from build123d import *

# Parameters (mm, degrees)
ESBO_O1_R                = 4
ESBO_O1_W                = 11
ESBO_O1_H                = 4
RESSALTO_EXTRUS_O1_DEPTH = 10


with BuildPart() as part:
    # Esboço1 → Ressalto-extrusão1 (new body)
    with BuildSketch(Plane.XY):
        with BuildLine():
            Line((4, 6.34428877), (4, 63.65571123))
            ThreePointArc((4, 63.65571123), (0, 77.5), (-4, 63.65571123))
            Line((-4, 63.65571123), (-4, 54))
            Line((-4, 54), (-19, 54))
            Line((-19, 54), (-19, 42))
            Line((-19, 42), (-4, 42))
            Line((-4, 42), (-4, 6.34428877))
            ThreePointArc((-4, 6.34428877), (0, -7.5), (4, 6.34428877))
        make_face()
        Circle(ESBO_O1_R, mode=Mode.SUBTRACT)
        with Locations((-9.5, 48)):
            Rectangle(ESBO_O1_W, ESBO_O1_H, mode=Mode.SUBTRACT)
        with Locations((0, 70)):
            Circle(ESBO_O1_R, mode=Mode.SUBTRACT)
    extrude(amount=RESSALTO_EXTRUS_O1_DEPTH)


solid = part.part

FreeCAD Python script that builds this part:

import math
import FreeCAD as App
import Part
import Sketcher
from FreeCAD import Vector
Q = App.Units.Quantity

doc = App.newDocument("Part")
body = doc.addObject("PartDesign::Body", "Body")

sketch1 = body.newObject("Sketcher::SketchObject", "Sketch")
sketch1.AttachmentSupport = (doc.getObject("XY_Plane"), [""])
sketch1.MapMode = "FlatFace"
sketch1.addGeometry([
    Part.LineSegment(Vector(4, 6.344289, 0), Vector(4, 63.655711, 0)),
    Part.ArcOfCircle(Part.Circle(Vector(0, 70, 0), Vector(0, 0, 1), 7.5), math.radians(-57.769047), math.radians(237.769047)),
    Part.LineSegment(Vector(-4, 63.655711, 0), Vector(-4, 54, 0)),
    Part.LineSegment(Vector(-4, 54, 0), Vector(-19, 54, 0)),
    Part.LineSegment(Vector(-19, 54, 0), Vector(-19, 42, 0)),
    Part.LineSegment(Vector(-19, 42, 0), Vector(-4, 42, 0)),
    Part.LineSegment(Vector(-4, 42, 0), Vector(-4, 6.344289, 0)),
    Part.ArcOfCircle(Part.Circle(Vector(0, 0, 0), Vector(0, 0, 1), 7.5), math.radians(122.230953), math.radians(417.769047)),
    Part.Circle(Vector(0, 0, 0), Vector(0, 0, 1), 4),
    Part.LineSegment(Vector(-4, 46, 0), Vector(-15, 46, 0)),
    Part.LineSegment(Vector(-15, 46, 0), Vector(-15, 50, 0)),
    Part.LineSegment(Vector(-15, 50, 0), Vector(-4, 50, 0)),
    Part.LineSegment(Vector(-4, 50, 0), Vector(-4, 46, 0)),
    Part.Circle(Vector(0, 70, 0), Vector(0, 0, 1), 4),
], False)
sketch1.addConstraint([
    Sketcher.Constraint("Coincident", 0, 2, 1, 1),
    Sketcher.Constraint("Coincident", 1, 2, 2, 1),
    Sketcher.Constraint("Coincident", 2, 2, 3, 1),
    Sketcher.Constraint("Coincident", 3, 2, 4, 1),
    Sketcher.Constraint("Coincident", 4, 2, 5, 1),
    Sketcher.Constraint("Coincident", 5, 2, 6, 1),
    Sketcher.Constraint("Coincident", 6, 2, 7, 1),
    Sketcher.Constraint("Coincident", 7, 2, 0, 1),
    Sketcher.Constraint("Coincident", 9, 2, 10, 1),
    Sketcher.Constraint("Coincident", 10, 2, 11, 1),
    Sketcher.Constraint("Coincident", 11, 2, 12, 1),
    Sketcher.Constraint("Coincident", 12, 2, 9, 1),
    Sketcher.Constraint("Vertical", 0),
    Sketcher.Constraint("Vertical", 2),
    Sketcher.Constraint("Horizontal", 3),
    Sketcher.Constraint("Vertical", 4),
    Sketcher.Constraint("Horizontal", 5),
    Sketcher.Constraint("Vertical", 6),
    Sketcher.Constraint("Horizontal", 9),
    Sketcher.Constraint("Vertical", 10),
    Sketcher.Constraint("Horizontal", 11),
    Sketcher.Constraint("Vertical", 12),
    Sketcher.Constraint("Coincident", 7, 3, -1, 1),
    Sketcher.Constraint("Coincident", 8, 3, -1, 1),
    Sketcher.Constraint("Coincident", 13, 3, 1, 3),
    Sketcher.Constraint("Equal", 1, 7),
    Sketcher.Constraint("Equal", 8, 13),
    Sketcher.Constraint("Symmetric", 0, 2, 1, 2, -2),
    Sketcher.Constraint("Horizontal", 6, 2, 7, 2),
    Sketcher.Constraint("Vertical", 6, 2, 11, 2),
    Sketcher.Constraint("Diameter", 8, Q("8 mm")),
    Sketcher.Constraint("Radius", 1, Q("7.5 mm")),
    Sketcher.Constraint("DistanceX", 3, 2, 3, 1, Q("15 mm")),
    Sketcher.Constraint("DistanceX", 9, 2, 9, 1, Q("11 mm")),
    Sketcher.Constraint("DistanceY", 4, 2, 4, 1, Q("12 mm")),
    Sketcher.Constraint("DistanceY", 10, 1, 10, 2, Q("4 mm")),
    Sketcher.Constraint("DistanceY", -1, 1, 1, 3, Q("70 mm")),
    Sketcher.Constraint("DistanceX", -1, 1, 0, 2, Q("4 mm")),
    Sketcher.Constraint("DistanceY", -1, 1, 2, 2, Q("54 mm")),
    Sketcher.Constraint("DistanceY", -1, 1, 9, 2, Q("46 mm")),
])
pad1 = body.newObject("PartDesign::Pad", "Pad")
pad1.Profile = sketch1
pad1.Length = 10

doc.recompute()
